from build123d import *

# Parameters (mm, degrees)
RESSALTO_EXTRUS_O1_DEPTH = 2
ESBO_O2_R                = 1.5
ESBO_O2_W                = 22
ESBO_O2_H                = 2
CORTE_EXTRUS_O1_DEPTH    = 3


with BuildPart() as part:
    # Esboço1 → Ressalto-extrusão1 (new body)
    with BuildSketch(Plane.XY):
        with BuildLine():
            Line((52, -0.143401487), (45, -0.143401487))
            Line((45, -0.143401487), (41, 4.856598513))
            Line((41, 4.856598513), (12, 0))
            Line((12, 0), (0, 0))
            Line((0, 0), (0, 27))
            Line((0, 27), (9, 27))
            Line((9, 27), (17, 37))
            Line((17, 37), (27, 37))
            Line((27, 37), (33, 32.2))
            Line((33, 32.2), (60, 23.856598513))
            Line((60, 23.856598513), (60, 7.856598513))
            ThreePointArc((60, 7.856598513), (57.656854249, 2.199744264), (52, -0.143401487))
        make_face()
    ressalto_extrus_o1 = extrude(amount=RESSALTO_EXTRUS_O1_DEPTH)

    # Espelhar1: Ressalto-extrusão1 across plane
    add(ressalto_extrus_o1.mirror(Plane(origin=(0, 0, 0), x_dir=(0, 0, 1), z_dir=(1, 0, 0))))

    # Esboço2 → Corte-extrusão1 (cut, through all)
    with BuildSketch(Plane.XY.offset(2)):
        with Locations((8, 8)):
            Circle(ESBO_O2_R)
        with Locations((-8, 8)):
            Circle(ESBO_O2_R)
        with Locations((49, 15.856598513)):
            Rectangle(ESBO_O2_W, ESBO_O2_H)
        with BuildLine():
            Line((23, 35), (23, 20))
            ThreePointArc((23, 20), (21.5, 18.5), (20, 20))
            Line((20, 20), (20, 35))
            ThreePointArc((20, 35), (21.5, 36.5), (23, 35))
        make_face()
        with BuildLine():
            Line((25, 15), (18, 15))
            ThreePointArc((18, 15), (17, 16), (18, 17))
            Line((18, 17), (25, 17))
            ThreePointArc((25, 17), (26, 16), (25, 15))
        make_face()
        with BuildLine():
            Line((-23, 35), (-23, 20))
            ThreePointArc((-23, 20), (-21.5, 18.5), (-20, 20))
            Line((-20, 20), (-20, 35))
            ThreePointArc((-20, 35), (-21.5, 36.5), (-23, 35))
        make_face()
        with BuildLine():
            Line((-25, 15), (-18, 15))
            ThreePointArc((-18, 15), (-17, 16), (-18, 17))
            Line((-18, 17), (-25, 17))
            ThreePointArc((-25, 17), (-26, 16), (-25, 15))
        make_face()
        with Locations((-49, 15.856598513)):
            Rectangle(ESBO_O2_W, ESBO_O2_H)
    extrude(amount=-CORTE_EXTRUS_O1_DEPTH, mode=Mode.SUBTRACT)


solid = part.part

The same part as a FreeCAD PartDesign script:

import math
import FreeCAD as App
import Part
import Sketcher
Q = App.Units.Quantity

doc = App.newDocument("Part")
body = doc.addObject("PartDesign::Body", "Body")

sketch1 = body.newObject("Sketcher::SketchObject", "Sketch")
sketch1.AttachmentSupport = (doc.getObject("XY_Plane"), [""])
sketch1.MapMode = "FlatFace"
sketch1.addGeometry(Part.LineSegment(App.Vector(45, 0, 0), App.Vector(52, 0, 0)), False)
sketch1.addGeometry(Part.ArcOfCircle(Part.Circle(App.Vector(52, 8, 0), App.Vector(0, 0, 1), 8), math.radians(-90), math.radians(0)), False)
sketch1.addGeometry(Part.LineSegment(App.Vector(60, 8, 0), App.Vector(60, 24, 0)), False)
sketch1.addGeometry(Part.LineSegment(App.Vector(60, 24, 0), App.Vector(33, 32, 0)), False)
sketch1.addGeometry(Part.LineSegment(App.Vector(33, 32, 0), App.Vector(27, 37, 0)), False)
sketch1.addGeometry(Part.LineSegment(App.Vector(27, 37, 0), App.Vector(17, 37, 0)), False)
sketch1.addGeometry(Part.LineSegment(App.Vector(17, 37, 0), App.Vector(9, 27, 0)), False)
sketch1.addGeometry(Part.LineSegment(App.Vector(9, 27, 0), App.Vector(0, 27, 0)), False)
sketch1.addGeometry(Part.LineSegment(App.Vector(0, 27, 0), App.Vector(0, 0, 0)), False)
sketch1.addGeometry(Part.LineSegment(App.Vector(0, 0, 0), App.Vector(12, 0, 0)), False)
sketch1.addGeometry(Part.LineSegment(App.Vector(12, 0, 0), App.Vector(41, 5, 0)), False)
sketch1.addGeometry(Part.LineSegment(App.Vector(41, 5, 0), App.Vector(45, 0, 0)), False)
sketch1.addConstraint(Sketcher.Constraint("Tangent", 0, 2, 1, 1))
sketch1.addConstraint(Sketcher.Constraint("Tangent", 1, 2, 2, 1))
sketch1.addConstraint(Sketcher.Constraint("Coincident", 2, 2, 3, 1))
sketch1.addConstraint(Sketcher.Constraint("Coincident", 3, 2, 4, 1))
sketch1.addConstraint(Sketcher.Constraint("Coincident", 4, 2, 5, 1))
sketch1.addConstraint(Sketcher.Constraint("Coincident", 5, 2, 6, 1))
sketch1.addConstraint(Sketcher.Constraint("Coincident", 6, 2, 7, 1))
sketch1.addConstraint(Sketcher.Constraint("Coincident", 7, 2, 8, 1))
sketch1.addConstraint(Sketcher.Constraint("Coincident", 8, 2, 9, 1))
sketch1.addConstraint(Sketcher.Constraint("Coincident", 9, 2, 10, 1))
sketch1.addConstraint(Sketcher.Constraint("Coincident", 10, 2, 11, 1))
sketch1.addConstraint(Sketcher.Constraint("Coincident", 11, 2, 0, 1))
sketch1.addConstraint(Sketcher.Constraint("Horizontal", 0))
sketch1.addConstraint(Sketcher.Constraint("Vertical", 2))
sketch1.addConstraint(Sketcher.Constraint("Horizontal", 5))
sketch1.addConstraint(Sketcher.Constraint("Horizontal", 7))
sketch1.addConstraint(Sketcher.Constraint("Vertical", 8))
sketch1.addConstraint(Sketcher.Constraint("Horizontal", 9))
sketch1.addConstraint(Sketcher.Constraint("Coincident", 8, 2, -1, 1))
sketch1.addConstraint(Sketcher.Constraint("Perpendicular", 4, 6))
sketch1.addConstraint(Sketcher.Constraint("Radius", 1, Q("8 mm")))
sketch1.addConstraint(Sketcher.Constraint("DistanceX", 0, 1, 0, 2, Q("7 mm")))
sketch1.addConstraint(Sketcher.Constraint("DistanceX", 5, 2, 5, 1, Q("10 mm")))
sketch1.addConstraint(Sketcher.Constraint("DistanceX", 7, 2, 7, 1, Q("9 mm")))
sketch1.addConstraint(Sketcher.Constraint("DistanceX", 9, 1, 9, 2, Q("12 mm")))
sketch1.addConstraint(Sketcher.Constraint("DistanceY", 2, 1, 2, 2, Q("16 mm")))
sketch1.addConstraint(Sketcher.Constraint("DistanceY", 8, 2, 8, 1, Q("27 mm")))
sketch1.addConstraint(Sketcher.Constraint("DistanceX", -1, 1, 1, 3, Q("52 mm")))
sketch1.addConstraint(Sketcher.Constraint("DistanceX", -1, 1, 3, 2, Q("33 mm")))
sketch1.addConstraint(Sketcher.Constraint("DistanceX", -1, 1, 4, 2, Q("27 mm")))
sketch1.addConstraint(Sketcher.Constraint("DistanceY", -1, 1, 4, 2, Q("37 mm")))
sketch1.addConstraint(Sketcher.Constraint("DistanceX", -1, 1, 10, 2, Q("41 mm")))
sketch1.addConstraint(Sketcher.Constraint("DistanceY", 10, 2, 1, 3, Q("3 mm")))
sketch1.addConstraint(Sketcher.Constraint("DistanceY", -1, 1, 1, 3, Q("7.856599 mm")))
pad1 = body.newObject("PartDesign::Pad", "Pad")
pad1.Profile = sketch1
pad1.Length = 2
doc.recompute()

mirrored = body.newObject("PartDesign::Mirrored", "Mirrored")
mirrored.Originals = [pad1]
mirrored.MirrorPlane = (doc.getObject("YZ_Plane"), [""])
body.Tip = mirrored

sketch2 = body.newObject("Sketcher::SketchObject", "Sketch001")
sketch2.AttachmentSupport = (doc.getObject("XY_Plane"), [""])
sketch2.MapMode = "FlatFace"
sketch2.AttachmentOffset = App.Placement(App.Vector(0, 0, 2), App.Rotation())
sketch2.addGeometry(Part.Circle(App.Vector(8, 8, 0), App.Vector(0, 0, 1), 1.5), False)
sketch2.addGeometry(Part.Circle(App.Vector(-8, 8, 0), App.Vector(0, 0, 1), 1.5), False)
sketch2.addGeometry(Part.LineSegment(App.Vector(38, 16.9, 0), App.Vector(38, 14.9, 0)), False)
sketch2.addGeometry(Part.LineSegment(App.Vector(38, 14.9, 0), App.Vector(60, 14.9, 0)), False)
sketch2.addGeometry(Part.LineSegment(App.Vector(60, 14.9, 0), App.Vector(60, 16.9, 0)), False)
sketch2.addGeometry(Part.LineSegment(App.Vector(60, 16.9, 0), App.Vector(38, 16.9, 0)), False)
sketch2.addGeometry(Part.LineSegment(App.Vector(23, 20, 0), App.Vector(23, 35, 0)), False)
sketch2.addGeometry(Part.ArcOfCircle(Part.Circle(App.Vector(21.5, 35, 0), App.Vector(0, 0, 1), 1.5), math.radians(0), math.radians(180)), False)
sketch2.addGeometry(Part.LineSegment(App.Vector(20, 35, 0), App.Vector(20, 20, 0)), False)
sketch2.addGeometry(Part.ArcOfCircle(Part.Circle(App.Vector(21.5, 20, 0), App.Vector(0, 0, 1), 1.5), math.radians(180), math.radians(360)), False)
sketch2.addGeometry(Part.LineSegment(App.Vector(18, 15, 0), App.Vector(25, 15, 0)), False)
sketch2.addGeometry(Part.ArcOfCircle(Part.Circle(App.Vector(25, 16, 0), App.Vector(0, 0, 1), 1), math.radians(-90), math.radians(90)), False)
sketch2.addGeometry(Part.LineSegment(App.Vector(25, 17, 0), App.Vector(18, 17, 0)), False)
sketch2.addGeometry(Part.ArcOfCircle(Part.Circle(App.Vector(18, 16, 0), App.Vector(0, 0, 1), 1), math.radians(90), math.radians(270)), False)
sketch2.addGeometry(Part.LineSegment(App.Vector(-23, 35, 0), App.Vector(-23, 20, 0)), False)
sketch2.addGeometry(Part.ArcOfCircle(Part.Circle(App.Vector(-21.5, 20, 0), App.Vector(0, 0, 1), 1.5), math.radians(180), math.radians(360)), False)
sketch2.addGeometry(Part.LineSegment(App.Vector(-20, 20, 0), App.Vector(-20, 35, 0)), False)
sketch2.addGeometry(Part.ArcOfCircle(Part.Circle(App.Vector(-21.5, 35, 0), App.Vector(0, 0, 1), 1.5), math.radians(0), math.radians(180)), False)
sketch2.addGeometry(Part.LineSegment(App.Vector(-25, 15, 0), App.Vector(-18, 15, 0)), False)
sketch2.addGeometry(Part.ArcOfCircle(Part.Circle(App.Vector(-18, 16, 0), App.Vector(0, 0, 1), 1), math.radians(-90), math.radians(90)), False)
sketch2.addGeometry(Part.LineSegment(App.Vector(-18, 17, 0), App.Vector(-25, 17, 0)), False)
sketch2.addGeometry(Part.ArcOfCircle(Part.Circle(App.Vector(-25, 16, 0), App.Vector(0, 0, 1), 1), math.radians(90), math.radians(270)), False)
sketch2.addGeometry(Part.LineSegment(App.Vector(-60, 16.9, 0), App.Vector(-60, 14.9, 0)), False)
sketch2.addGeometry(Part.LineSegment(App.Vector(-60, 14.9, 0), App.Vector(-38, 14.9, 0)), False)
sketch2.addGeometry(Part.LineSegment(App.Vector(-38, 14.9, 0), App.Vector(-38, 16.9, 0)), False)
sketch2.addGeometry(Part.LineSegment(App.Vector(-38, 16.9, 0), App.Vector(-60, 16.9, 0)), False)
sketch2.addConstraint(Sketcher.Constraint("Coincident", 2, 2, 3, 1))
sketch2.addConstraint(Sketcher.Constraint("Coincident", 3, 2, 4, 1))
sketch2.addConstraint(Sketcher.Constraint("Coincident", 4, 2, 5, 1))
sketch2.addConstraint(Sketcher.Constraint("Coincident", 5, 2, 2, 1))
sketch2.addConstraint(Sketcher.Constraint("Tangent", 6, 2, 7, 1))
sketch2.addConstraint(Sketcher.Constraint("Tangent", 7, 2, 8, 1))
sketch2.addConstraint(Sketcher.Constraint("Tangent", 8, 2, 9, 1))
sketch2.addConstraint(Sketcher.Constraint("Tangent", 9, 2, 6, 1))
sketch2.addConstraint(Sketcher.Constraint("Tangent", 10, 2, 11, 1))
sketch2.addConstraint(Sketcher.Constraint("Tangent", 11, 2, 12, 1))
sketch2.addConstraint(Sketcher.Constraint("Tangent", 12, 2, 13, 1))
sketch2.addConstraint(Sketcher.Constraint("Tangent", 13, 2, 10, 1))
sketch2.addConstraint(Sketcher.Constraint("Tangent", 14, 2, 15, 1))
sketch2.addConstraint(Sketcher.Constraint("Tangent", 15, 2, 16, 1))
sketch2.addConstraint(Sketcher.Constraint("Tangent", 16, 2, 17, 1))
sketch2.addConstraint(Sketcher.Constraint("Tangent", 17, 2, 14, 1))
sketch2.addConstraint(Sketcher.Constraint("Tangent", 18, 2, 19, 1))
sketch2.addConstraint(Sketcher.Constraint("Tangent", 19, 2, 20, 1))
sketch2.addConstraint(Sketcher.Constraint("Tangent", 20, 2, 21, 1))
sketch2.addConstraint(Sketcher.Constraint("Tangent", 21, 2, 18, 1))
sketch2.addConstraint(Sketcher.Constraint("Coincident", 22, 2, 23, 1))
sketch2.addConstraint(Sketcher.Constraint("Coincident", 23, 2, 24, 1))
sketch2.addConstraint(Sketcher.Constraint("Coincident", 24, 2, 25, 1))
sketch2.addConstraint(Sketcher.Constraint("Coincident", 25, 2, 22, 1))
sketch2.addConstraint(Sketcher.Constraint("Vertical", 2))
sketch2.addConstraint(Sketcher.Constraint("Horizontal", 3))
sketch2.addConstraint(Sketcher.Constraint("Vertical", 4))
sketch2.addConstraint(Sketcher.Constraint("Horizontal", 5))
sketch2.addConstraint(Sketcher.Constraint("Vertical", 6))
sketch2.addConstraint(Sketcher.Constraint("Vertical", 8))
sketch2.addConstraint(Sketcher.Constraint("Horizontal", 10))
sketch2.addConstraint(Sketcher.Constraint("Horizontal", 12))
sketch2.addConstraint(Sketcher.Constraint("Vertical", 14))
sketch2.addConstraint(Sketcher.Constraint("Vertical", 16))
sketch2.addConstraint(Sketcher.Constraint("Horizontal", 18))
sketch2.addConstraint(Sketcher.Constraint("Horizontal", 20))
sketch2.addConstraint(Sketcher.Constraint("Vertical", 22))
sketch2.addConstraint(Sketcher.Constraint("Horizontal", 23))
sketch2.addConstraint(Sketcher.Constraint("Vertical", 24))
sketch2.addConstraint(Sketcher.Constraint("Horizontal", 25))
sketch2.addConstraint(Sketcher.Constraint("Equal", 0, 1))
sketch2.addConstraint(Sketcher.Constraint("Equal", 1, 7))
sketch2.addConstraint(Sketcher.Constraint("Equal", 9, 15))
sketch2.addConstraint(Sketcher.Constraint("Equal", 13, 19))
sketch2.addConstraint(Sketcher.Constraint("Symmetric", 0, 3, 1, 3, -2))
sketch2.addConstraint(Sketcher.Constraint("Symmetric", 9, 3, 15, 3, -2))
sketch2.addConstraint(Sketcher.Constraint("Symmetric", 13, 3, 19, 3, -2))
sketch2.addConstraint(Sketcher.Constraint("Symmetric", 3, 2, 22, 2, -2))
sketch2.addConstraint(Sketcher.Constraint("Symmetric", 5, 2, 24, 2, -2))
sketch2.addConstraint(Sketcher.Constraint("Horizontal", 7, 3, 17, 3))
sketch2.addConstraint(Sketcher.Constraint("Equal", 12, 18))
sketch2.addConstraint(Sketcher.Constraint("Diameter", 0, Q("3 mm")))
sketch2.addConstraint(Sketcher.Constraint("Radius", 11, Q("1 mm")))
sketch2.addConstraint(Sketcher.Constraint("DistanceX", 3, 1, 3, 2, Q("22 mm")))
sketch2.addConstraint(Sketcher.Constraint("DistanceX", 10, 1, 10, 2, Q("7 mm")))
sketch2.addConstraint(Sketcher.Constraint("DistanceY", 2, 2, 2, 1, Q("2 mm")))
sketch2.addConstraint(Sketcher.Constraint("DistanceY", 6, 1, 6, 2, Q("15 mm")))
sketch2.addConstraint(Sketcher.Constraint("DistanceX", -1, 1, 0, 3, Q("8 mm")))
sketch2.addConstraint(Sketcher.Constraint("DistanceY", -1, 1, 0, 3, Q("8 mm")))
sketch2.addConstraint(Sketcher.Constraint("DistanceY", -1, 1, 7, 3, Q("35 mm")))
sketch2.addConstraint(Sketcher.Constraint("DistanceX", -1, 1, 11, 3, Q("25 mm")))
sketch2.addConstraint(Sketcher.Constraint("DistanceY", -1, 1, 11, 3, Q("16 mm")))
sketch2.addConstraint(Sketcher.Constraint("DistanceX", -1, 1, 2, 2, Q("38 mm")))
sketch2.addConstraint(Sketcher.Constraint("DistanceX", -1, 1, 6, 2, Q("23 mm")))
sketch2.addConstraint(Sketcher.Constraint("DistanceY", -1, 1, 2, 2, Q("14.856599 mm")))
pocket1 = body.newObject("PartDesign::Pocket", "Pocket")
pocket1.Profile = sketch2
pocket1.Type = "ThroughAll"

doc.recompute()
